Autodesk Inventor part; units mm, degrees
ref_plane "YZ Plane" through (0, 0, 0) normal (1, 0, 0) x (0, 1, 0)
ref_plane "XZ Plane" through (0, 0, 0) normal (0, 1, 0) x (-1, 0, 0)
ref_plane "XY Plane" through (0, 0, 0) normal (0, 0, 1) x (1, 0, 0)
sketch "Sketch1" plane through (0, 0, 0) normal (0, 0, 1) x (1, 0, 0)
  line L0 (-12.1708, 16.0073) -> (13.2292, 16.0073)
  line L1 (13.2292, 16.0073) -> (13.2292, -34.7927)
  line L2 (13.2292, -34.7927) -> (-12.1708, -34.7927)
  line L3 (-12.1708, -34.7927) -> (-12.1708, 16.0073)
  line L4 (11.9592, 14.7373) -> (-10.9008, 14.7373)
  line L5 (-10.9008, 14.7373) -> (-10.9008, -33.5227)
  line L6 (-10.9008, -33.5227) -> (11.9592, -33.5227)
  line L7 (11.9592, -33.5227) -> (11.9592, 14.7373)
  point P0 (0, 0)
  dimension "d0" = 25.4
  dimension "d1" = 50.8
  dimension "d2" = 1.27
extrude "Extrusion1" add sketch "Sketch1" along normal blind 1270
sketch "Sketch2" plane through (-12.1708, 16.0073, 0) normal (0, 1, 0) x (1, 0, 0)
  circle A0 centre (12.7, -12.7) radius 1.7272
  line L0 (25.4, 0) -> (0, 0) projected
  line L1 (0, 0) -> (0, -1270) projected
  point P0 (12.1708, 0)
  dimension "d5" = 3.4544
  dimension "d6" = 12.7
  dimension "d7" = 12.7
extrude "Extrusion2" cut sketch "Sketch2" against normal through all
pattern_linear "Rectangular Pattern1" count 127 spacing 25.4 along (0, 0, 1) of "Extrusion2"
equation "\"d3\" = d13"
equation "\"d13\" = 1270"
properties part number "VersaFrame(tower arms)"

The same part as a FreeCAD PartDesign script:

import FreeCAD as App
import Part
import Sketcher
from FreeCAD import Vector
Q = App.Units.Quantity


def add_polygon(sketch, points):
    """Adds a closed chain of lines whose ends are joined by coincident constraints."""
    first, n = sketch.GeometryCount, len(points)
    for a, b in zip(points, points[1:] + points[:1]):
        sketch.addGeometry(Part.LineSegment(App.Vector(*a, 0), App.Vector(*b, 0)), False)
    for i in range(n):
        sketch.addConstraint(Sketcher.Constraint("Coincident", first + i, 2, first + (i + 1) % n, 1))

doc = App.newDocument("Part")
body = doc.addObject("PartDesign::Body", "Body")

# Sketch on XY plane
sketch1 = body.newObject("Sketcher::SketchObject", "Sketch")
sketch1.AttachmentSupport = (doc.getObject("XY_Plane"), [""])
sketch1.MapMode = "FlatFace"
add_polygon(sketch1, [(13.2292, 16.0073), (-12.1708, 16.0073), (-12.1708, -34.7927), (13.2292, -34.7927)])  # lines 0-3
add_polygon(sketch1, [(-10.9008, 14.7373), (11.9592, 14.7373), (11.9592, -33.5227), (-10.9008, -33.5227)])  # lines 4-7
sketch1.addConstraint(Sketcher.Constraint("Horizontal", 0))
sketch1.addConstraint(Sketcher.Constraint("Vertical", 1))
sketch1.addConstraint(Sketcher.Constraint("Horizontal", 2))
sketch1.addConstraint(Sketcher.Constraint("Vertical", 3))
sketch1.addConstraint(Sketcher.Constraint("Horizontal", 4))
sketch1.addConstraint(Sketcher.Constraint("Vertical", 5))
sketch1.addConstraint(Sketcher.Constraint("Horizontal", 6))
sketch1.addConstraint(Sketcher.Constraint("Vertical", 7))
sketch1.addConstraint(Sketcher.Constraint("DistanceX", 0, 2, 0, 1, Q("1 in")))
sketch1.addConstraint(Sketcher.Constraint("DistanceY", 1, 2, 1, 1, Q("2 in")))
sketch1.addConstraint(Sketcher.Constraint("DistanceX", 4, 2, 3, 2, Q("0.05 in")))
sketch1.addConstraint(Sketcher.Constraint("DistanceY", 4, 2, 3, 2, Q("0.05 in")))
sketch1.addConstraint(Sketcher.Constraint("DistanceY", 2, 2, 5, 2, Q("0.05 in")))
sketch1.addConstraint(Sketcher.Constraint("DistanceX", 1, 2, 6, 2, Q("0.05 in")))
sketch1.addConstraint(Sketcher.Constraint("DistanceY", -1, 1, 0, 2, Q("0.6302 in")))
sketch1.addConstraint(Sketcher.Constraint("DistanceX", 0, 2, -1, 1, 12.1708))
pad1 = body.newObject("PartDesign::Pad", "Pad")
pad1.Profile = sketch1
pad1.Length = Q("50 in")

# Sketch on XZ plane
sketch2 = body.newObject("Sketcher::SketchObject", "Sketch001")
sketch2.AttachmentSupport = (doc.getObject("XZ_Plane"), [""])
sketch2.MapMode = "FlatFace"
sketch2.AttachmentOffset = App.Placement(Vector(0, 0, -0.6302087 * 25.4), App.Rotation())
sketch2.addGeometry(Part.Circle(Vector(0.5292, 12.7, 0), Vector(0, 0, 1), 1.7272), False)
sketch2.addConstraint(Sketcher.Constraint("Diameter", 0, Q("0.136 in")))
sketch2.addConstraint(Sketcher.Constraint("DistanceY", -1, 1, 0, 3, Q("0.5 in")))
sketch2.addConstraint(Sketcher.Constraint("DistanceX", -1, 1, 0, 3, 0.5292))
pocket1 = body.newObject("PartDesign::Pocket", "Pocket")
pocket1.Profile = sketch2
pocket1.Type = "ThroughAll"
pocket1.Reversed = True
doc.recompute()

linearpattern = body.newObject("PartDesign::LinearPattern", "LinearPattern")
linearpattern.Originals = [pocket1]
linearpattern.Direction = (doc.getObject("Z_Axis"), [""])
linearpattern.Mode = "offset"
linearpattern.Offset = Q("1 in")
linearpattern.Occurrences = 127
body.Tip = linearpattern

doc.recompute()
